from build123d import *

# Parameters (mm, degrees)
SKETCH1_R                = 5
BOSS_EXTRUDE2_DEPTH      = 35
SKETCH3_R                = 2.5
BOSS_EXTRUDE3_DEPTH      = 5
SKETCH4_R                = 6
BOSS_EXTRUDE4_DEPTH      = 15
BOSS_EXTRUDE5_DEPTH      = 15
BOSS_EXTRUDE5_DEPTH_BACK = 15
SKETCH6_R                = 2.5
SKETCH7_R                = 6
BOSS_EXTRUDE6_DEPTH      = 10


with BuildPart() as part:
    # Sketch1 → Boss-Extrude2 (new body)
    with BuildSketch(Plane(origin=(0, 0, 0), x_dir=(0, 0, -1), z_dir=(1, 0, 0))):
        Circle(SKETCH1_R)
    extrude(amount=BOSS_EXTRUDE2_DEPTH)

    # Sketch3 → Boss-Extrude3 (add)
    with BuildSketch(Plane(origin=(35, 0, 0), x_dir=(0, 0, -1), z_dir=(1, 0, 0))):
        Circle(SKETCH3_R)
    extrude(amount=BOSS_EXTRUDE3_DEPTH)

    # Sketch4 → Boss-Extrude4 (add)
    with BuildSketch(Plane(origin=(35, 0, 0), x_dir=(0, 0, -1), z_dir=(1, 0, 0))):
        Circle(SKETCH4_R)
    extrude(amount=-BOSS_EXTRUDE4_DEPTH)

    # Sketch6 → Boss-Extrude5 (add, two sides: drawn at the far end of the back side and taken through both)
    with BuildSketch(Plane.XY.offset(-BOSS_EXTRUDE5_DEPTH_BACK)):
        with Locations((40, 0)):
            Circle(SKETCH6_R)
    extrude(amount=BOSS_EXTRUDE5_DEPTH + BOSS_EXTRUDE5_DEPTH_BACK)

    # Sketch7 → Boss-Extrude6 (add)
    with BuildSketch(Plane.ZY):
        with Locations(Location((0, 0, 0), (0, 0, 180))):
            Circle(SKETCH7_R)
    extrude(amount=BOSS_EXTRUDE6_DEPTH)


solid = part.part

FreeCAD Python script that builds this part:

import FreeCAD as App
import Part
import Sketcher
Q = App.Units.Quantity

doc = App.newDocument("Part")
body = doc.addObject("PartDesign::Body", "Body")

# Sketch on YZ plane
sketch1 = doc.addObject("Sketcher::SketchObject", "Sketch")
body.addObject(sketch1)
sketch1.AttachmentSupport = (doc.YZ_Plane, [""])
sketch1.MapMode = "FlatFace"
sketch1.addGeometry(Part.Circle(App.Vector(0, 0, 0), App.Vector(0, 0, 1), 5), False)
sketch1.addConstraint([
    Sketcher.Constraint("Coincident", 0, 3, -1, 1),
    Sketcher.Constraint("Diameter", 0, Q("10 mm")),
])
pad1 = doc.addObject("PartDesign::Pad", "Pad")
body.addObject(pad1)
pad1.Profile = sketch1
pad1.Length = 35

# Sketch on YZ plane
sketch2 = doc.addObject("Sketcher::SketchObject", "Sketch001")
body.addObject(sketch2)
sketch2.AttachmentSupport = (doc.YZ_Plane, [""])
sketch2.MapMode = "FlatFace"
sketch2.AttachmentOffset = App.Placement(App.Vector(0, 0, 35), App.Rotation())
sketch2.addGeometry(Part.Circle(App.Vector(0, 0, 0), App.Vector(0, 0, 1), 2.5), False)
sketch2.addConstraint([
    Sketcher.Constraint("Coincident", 0, 3, -1, 1),
    Sketcher.Constraint("Diameter", 0, Q("5 mm")),
])
pad2 = doc.addObject("PartDesign::Pad", "Pad001")
body.addObject(pad2)
pad2.Profile = sketch2
pad2.Length = 5

# Sketch on YZ plane
sketch3 = doc.addObject("Sketcher::SketchObject", "Sketch002")
body.addObject(sketch3)
sketch3.AttachmentSupport = (doc.YZ_Plane, [""])
sketch3.MapMode = "FlatFace"
sketch3.AttachmentOffset = App.Placement(App.Vector(0, 0, 35), App.Rotation())
sketch3.addGeometry(Part.Circle(App.Vector(0, 0, 0), App.Vector(0, 0, 1), 6), False)
sketch3.addConstraint([
    Sketcher.Constraint("Coincident", 0, 3, -1, 1),
    Sketcher.Constraint("Diameter", 0, Q("12 mm")),
])
pad3 = doc.addObject("PartDesign::Pad", "Pad002")
body.addObject(pad3)
pad3.Profile = sketch3
pad3.Length = 15
pad3.Reversed = True

# Sketch on XY plane
sketch4 = doc.addObject("Sketcher::SketchObject", "Sketch003")
body.addObject(sketch4)
sketch4.AttachmentSupport = (doc.XY_Plane, [""])
sketch4.MapMode = "FlatFace"
sketch4.addGeometry(Part.Circle(App.Vector(40, 0, 0), App.Vector(0, 0, 1), 2.5), False)
sketch4.addConstraint([
    Sketcher.Constraint("PointOnObject", 0, 3, -1),
    Sketcher.Constraint("Diameter", 0, Q("5 mm")),
    Sketcher.Constraint("DistanceX", -1, 1, 0, 3, Q("40 mm")),
])
pad4 = doc.addObject("PartDesign::Pad", "Pad003")
body.addObject(pad4)
pad4.Profile = sketch4
pad4.Type = "TwoLengths"
pad4.Length = 15
pad4.Length2 = 15

# Sketch on YZ plane
sketch5 = doc.addObject("Sketcher::SketchObject", "Sketch004")
body.addObject(sketch5)
sketch5.AttachmentSupport = (doc.YZ_Plane, [""])
sketch5.MapMode = "FlatFace"
sketch5.addGeometry(Part.Circle(App.Vector(0, 0, 0), App.Vector(0, 0, 1), 6), False)
sketch5.addConstraint([
    Sketcher.Constraint("Coincident", 0, 3, -1, 1),
    Sketcher.Constraint("Diameter", 0, Q("12 mm")),
])
pad5 = doc.addObject("PartDesign::Pad", "Pad004")
body.addObject(pad5)
pad5.Profile = sketch5
pad5.Length = 10
pad5.Reversed = True

doc.recompute()
